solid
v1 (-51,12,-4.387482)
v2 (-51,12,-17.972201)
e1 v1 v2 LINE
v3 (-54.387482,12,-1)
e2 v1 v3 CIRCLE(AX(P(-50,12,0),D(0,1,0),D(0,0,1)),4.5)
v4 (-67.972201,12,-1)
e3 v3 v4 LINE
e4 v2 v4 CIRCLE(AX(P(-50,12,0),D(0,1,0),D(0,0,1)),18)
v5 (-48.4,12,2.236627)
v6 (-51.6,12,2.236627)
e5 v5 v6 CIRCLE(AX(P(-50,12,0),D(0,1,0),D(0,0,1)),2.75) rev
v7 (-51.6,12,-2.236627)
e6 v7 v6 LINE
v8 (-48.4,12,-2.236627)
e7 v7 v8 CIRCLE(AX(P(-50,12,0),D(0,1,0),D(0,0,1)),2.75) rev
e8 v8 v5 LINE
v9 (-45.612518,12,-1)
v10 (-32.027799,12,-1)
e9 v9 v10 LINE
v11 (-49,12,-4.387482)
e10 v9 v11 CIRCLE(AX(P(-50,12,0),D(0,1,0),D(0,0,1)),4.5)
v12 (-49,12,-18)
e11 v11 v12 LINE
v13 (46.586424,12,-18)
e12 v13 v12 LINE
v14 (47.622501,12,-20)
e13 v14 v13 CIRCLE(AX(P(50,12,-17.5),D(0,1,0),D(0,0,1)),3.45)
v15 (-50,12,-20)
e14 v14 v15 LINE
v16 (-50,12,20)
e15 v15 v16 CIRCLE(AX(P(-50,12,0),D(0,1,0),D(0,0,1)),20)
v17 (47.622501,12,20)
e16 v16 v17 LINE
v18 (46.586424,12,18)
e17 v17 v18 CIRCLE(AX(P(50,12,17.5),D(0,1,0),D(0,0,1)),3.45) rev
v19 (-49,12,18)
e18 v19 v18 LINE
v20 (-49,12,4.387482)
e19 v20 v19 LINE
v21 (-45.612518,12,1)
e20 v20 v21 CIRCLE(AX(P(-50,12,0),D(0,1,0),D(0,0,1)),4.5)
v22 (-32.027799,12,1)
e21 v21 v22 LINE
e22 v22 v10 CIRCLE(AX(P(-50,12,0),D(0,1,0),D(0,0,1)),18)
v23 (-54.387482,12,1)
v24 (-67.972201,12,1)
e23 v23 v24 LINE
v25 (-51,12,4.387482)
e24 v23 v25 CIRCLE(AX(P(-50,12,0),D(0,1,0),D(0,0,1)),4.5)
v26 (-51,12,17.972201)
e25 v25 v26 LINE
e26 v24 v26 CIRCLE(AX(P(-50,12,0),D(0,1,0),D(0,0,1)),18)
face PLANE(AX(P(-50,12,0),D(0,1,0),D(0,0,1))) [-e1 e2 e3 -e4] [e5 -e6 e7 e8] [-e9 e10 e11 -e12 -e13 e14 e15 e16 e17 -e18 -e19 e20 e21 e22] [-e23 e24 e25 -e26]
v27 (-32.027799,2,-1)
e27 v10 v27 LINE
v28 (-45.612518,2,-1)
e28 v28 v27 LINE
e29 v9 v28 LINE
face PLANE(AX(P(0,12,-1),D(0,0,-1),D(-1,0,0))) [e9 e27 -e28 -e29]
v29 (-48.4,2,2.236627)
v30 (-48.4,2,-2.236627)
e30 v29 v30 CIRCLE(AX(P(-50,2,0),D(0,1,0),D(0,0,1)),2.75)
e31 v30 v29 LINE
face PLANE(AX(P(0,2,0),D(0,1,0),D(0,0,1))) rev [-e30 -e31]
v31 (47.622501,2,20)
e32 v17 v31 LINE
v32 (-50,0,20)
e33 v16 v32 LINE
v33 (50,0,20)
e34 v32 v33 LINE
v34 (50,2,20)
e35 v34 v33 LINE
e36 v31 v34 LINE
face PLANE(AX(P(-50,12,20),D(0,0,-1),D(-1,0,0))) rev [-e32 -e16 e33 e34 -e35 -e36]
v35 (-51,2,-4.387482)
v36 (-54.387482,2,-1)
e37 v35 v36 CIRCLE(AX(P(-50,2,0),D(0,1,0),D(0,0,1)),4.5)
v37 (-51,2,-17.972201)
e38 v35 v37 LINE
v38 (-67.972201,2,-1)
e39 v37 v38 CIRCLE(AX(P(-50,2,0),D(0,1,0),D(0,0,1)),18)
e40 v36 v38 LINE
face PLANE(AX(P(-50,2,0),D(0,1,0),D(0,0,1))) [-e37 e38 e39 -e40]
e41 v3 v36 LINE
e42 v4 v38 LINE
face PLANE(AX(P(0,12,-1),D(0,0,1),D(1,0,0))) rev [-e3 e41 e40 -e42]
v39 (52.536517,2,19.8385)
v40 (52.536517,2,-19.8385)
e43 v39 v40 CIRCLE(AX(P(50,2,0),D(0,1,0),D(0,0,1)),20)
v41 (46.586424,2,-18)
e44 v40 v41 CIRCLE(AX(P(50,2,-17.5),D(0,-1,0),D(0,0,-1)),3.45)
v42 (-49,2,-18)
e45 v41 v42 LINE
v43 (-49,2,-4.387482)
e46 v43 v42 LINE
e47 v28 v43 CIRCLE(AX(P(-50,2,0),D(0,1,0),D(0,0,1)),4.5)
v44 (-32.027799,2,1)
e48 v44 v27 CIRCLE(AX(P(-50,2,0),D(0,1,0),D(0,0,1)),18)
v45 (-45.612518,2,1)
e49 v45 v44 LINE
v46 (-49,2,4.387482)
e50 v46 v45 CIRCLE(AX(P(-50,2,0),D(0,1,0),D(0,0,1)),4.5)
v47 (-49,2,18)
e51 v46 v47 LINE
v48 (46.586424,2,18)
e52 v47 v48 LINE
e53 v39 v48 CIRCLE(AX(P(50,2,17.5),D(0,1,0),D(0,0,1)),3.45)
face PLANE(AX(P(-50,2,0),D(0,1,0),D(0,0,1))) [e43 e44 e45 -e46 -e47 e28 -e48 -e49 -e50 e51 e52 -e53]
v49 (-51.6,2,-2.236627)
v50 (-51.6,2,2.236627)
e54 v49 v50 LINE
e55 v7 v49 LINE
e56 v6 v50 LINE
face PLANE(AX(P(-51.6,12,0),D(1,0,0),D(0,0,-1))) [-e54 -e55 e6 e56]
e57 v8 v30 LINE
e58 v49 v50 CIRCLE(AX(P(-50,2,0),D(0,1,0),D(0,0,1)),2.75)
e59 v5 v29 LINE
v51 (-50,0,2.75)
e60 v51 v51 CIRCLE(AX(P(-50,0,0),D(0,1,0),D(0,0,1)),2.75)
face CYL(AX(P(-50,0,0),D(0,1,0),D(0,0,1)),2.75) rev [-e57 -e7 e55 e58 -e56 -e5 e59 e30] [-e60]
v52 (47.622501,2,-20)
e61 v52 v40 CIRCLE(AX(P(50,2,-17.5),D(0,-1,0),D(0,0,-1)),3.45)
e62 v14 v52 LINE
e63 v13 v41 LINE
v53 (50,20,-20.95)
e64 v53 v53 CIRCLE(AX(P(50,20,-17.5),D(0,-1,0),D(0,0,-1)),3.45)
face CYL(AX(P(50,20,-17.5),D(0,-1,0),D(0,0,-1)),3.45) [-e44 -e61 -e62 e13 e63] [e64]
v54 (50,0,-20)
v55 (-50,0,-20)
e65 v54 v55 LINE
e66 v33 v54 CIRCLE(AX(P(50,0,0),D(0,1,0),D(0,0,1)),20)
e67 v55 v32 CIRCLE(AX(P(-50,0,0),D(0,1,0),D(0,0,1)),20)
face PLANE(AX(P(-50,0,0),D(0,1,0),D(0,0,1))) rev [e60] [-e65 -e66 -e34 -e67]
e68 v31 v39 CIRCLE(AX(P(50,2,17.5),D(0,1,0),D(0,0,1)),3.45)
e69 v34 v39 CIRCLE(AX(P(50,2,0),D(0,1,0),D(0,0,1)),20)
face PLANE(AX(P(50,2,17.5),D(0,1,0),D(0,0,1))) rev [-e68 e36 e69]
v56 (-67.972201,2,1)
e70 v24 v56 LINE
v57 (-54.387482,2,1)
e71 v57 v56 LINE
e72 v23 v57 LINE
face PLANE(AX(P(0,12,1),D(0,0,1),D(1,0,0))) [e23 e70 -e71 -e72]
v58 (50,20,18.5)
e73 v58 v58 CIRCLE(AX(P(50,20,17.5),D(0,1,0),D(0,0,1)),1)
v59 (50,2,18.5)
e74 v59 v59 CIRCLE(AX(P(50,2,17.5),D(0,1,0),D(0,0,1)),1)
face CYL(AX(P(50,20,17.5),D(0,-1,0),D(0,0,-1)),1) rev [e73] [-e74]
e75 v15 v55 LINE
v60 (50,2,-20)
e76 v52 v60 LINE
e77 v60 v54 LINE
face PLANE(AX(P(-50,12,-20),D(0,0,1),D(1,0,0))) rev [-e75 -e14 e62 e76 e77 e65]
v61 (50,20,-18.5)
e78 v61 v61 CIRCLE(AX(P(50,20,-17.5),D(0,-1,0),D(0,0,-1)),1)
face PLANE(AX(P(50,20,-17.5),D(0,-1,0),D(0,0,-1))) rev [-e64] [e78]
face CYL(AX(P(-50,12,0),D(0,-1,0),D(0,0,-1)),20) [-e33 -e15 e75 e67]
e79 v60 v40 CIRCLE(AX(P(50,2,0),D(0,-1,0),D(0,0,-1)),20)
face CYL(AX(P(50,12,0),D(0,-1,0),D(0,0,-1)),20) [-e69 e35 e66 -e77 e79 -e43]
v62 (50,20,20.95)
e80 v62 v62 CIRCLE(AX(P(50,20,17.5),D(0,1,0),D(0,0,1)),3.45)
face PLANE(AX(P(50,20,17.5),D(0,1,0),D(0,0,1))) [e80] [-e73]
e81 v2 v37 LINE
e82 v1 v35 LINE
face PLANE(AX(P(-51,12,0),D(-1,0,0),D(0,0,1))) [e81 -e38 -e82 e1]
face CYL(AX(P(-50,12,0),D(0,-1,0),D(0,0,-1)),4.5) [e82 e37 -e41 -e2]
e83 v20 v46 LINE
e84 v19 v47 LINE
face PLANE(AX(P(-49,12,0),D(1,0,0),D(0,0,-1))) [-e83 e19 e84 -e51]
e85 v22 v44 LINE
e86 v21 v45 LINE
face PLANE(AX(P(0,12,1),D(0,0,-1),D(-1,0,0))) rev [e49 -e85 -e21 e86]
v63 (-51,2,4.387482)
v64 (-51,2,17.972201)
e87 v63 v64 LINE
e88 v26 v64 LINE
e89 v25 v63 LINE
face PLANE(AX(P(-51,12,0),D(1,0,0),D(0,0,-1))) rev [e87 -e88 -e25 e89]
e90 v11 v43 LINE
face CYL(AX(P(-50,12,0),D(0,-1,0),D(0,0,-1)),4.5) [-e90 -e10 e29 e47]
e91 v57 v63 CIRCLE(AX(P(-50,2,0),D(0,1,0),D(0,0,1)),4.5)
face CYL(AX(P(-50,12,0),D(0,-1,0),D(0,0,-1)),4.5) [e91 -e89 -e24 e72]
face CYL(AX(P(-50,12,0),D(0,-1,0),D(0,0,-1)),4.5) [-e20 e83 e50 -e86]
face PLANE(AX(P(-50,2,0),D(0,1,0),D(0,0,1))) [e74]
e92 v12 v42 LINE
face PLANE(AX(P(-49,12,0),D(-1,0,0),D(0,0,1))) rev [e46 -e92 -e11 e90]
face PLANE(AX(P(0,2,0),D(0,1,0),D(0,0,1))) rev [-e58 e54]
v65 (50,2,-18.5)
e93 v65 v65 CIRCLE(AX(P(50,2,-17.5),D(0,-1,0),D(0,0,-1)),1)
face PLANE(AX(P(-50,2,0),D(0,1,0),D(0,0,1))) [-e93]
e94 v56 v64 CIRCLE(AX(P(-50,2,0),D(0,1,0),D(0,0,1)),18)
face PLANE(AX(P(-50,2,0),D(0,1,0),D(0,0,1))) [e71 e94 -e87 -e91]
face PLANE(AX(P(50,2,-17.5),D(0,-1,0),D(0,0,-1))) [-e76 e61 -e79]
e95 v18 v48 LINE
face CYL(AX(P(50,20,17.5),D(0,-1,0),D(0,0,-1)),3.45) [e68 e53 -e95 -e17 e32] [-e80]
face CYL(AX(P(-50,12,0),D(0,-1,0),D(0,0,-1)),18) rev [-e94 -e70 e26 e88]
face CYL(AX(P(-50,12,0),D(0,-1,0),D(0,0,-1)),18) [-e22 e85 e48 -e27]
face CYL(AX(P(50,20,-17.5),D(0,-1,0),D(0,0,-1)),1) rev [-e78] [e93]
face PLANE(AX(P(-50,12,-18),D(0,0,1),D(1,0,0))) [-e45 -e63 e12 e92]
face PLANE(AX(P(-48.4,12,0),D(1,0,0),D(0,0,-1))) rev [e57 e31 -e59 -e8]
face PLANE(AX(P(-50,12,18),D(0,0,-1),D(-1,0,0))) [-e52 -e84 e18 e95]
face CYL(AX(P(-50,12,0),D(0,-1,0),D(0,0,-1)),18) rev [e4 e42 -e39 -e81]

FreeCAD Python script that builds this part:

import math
import FreeCAD as App
import Part
import Sketcher

V = App.Vector


def faces_at(feature, points):
    """Names of the faces that lie closest to the given points."""
    faces = feature.Shape.Faces
    near = lambda p: min(range(len(faces)), key=lambda i: faces[i].distToShape(Part.Vertex(*p))[0])
    return sorted({f"Face{near(p) + 1}" for p in points})


def add_polygon(sketch, points):
    """Adds a closed chain of lines whose ends are joined by coincident constraints."""
    first, n = sketch.GeometryCount, len(points)
    for a, b in zip(points, points[1:] + points[:1]):
        sketch.addGeometry(Part.LineSegment(App.Vector(*a, 0), App.Vector(*b, 0)), False)
    for i in range(n):
        sketch.addConstraint(Sketcher.Constraint("Coincident", first + i, 2, first + (i + 1) % n, 1))

doc = App.newDocument("Part")
body = doc.addObject("PartDesign::Body", "Body")

# Sketch on XZ plane
sketch1 = body.newObject("Sketcher::SketchObject", "Sketch")
sketch1.AttachmentSupport = (doc.getObject("XZ_Plane"), [""])
sketch1.MapMode = "FlatFace"
sketch1.addGeometry([
    Part.LineSegment(V(50, -20, 0), V(-50, -20, 0)),
    Part.ArcOfCircle(Part.Circle(V(-50, 0, 0), V(0, 0, 1), 20), math.radians(90), math.radians(270)),
    Part.LineSegment(V(-50, 20, 0), V(50, 20, 0)),
    Part.ArcOfCircle(Part.Circle(V(50, 0, 0), V(0, 0, 1), 20), math.radians(-90), math.radians(90)),
], False)
sketch1.addConstraint([
    Sketcher.Constraint("Tangent", 0, 2, 1, 2),
    Sketcher.Constraint("Tangent", 1, 1, 2, 1),
    Sketcher.Constraint("Tangent", 2, 2, 3, 2),
    Sketcher.Constraint("Tangent", 3, 1, 0, 1),
    Sketcher.Constraint("Horizontal", 0),
    Sketcher.Constraint("Horizontal", 2),
    Sketcher.Constraint("Symmetric", 1, 3, 3, 3, -1, 1),
    Sketcher.Constraint("Radius", 1, 20.0),
    Sketcher.Constraint("DistanceX", 0, 2, 0, 1, 100.0),
])
pad1 = body.newObject("PartDesign::Pad", "Pad")
pad1.Profile = sketch1
pad1.Length = 12
pad1.Reversed = True
doc.recompute()

thickness = body.newObject("PartDesign::Thickness", "Thickness")
thickness.Base = (pad1, faces_at(pad1, [(0, 12, 0)]))
thickness.Value = 2
thickness.Reversed = True
thickness.Join = "Intersection"

# Sketch on XZ plane
sketch2 = body.newObject("Sketcher::SketchObject", "Sketch001")
sketch2.AttachmentSupport = (doc.getObject("XZ_Plane"), [""])
sketch2.MapMode = "FlatFace"
sketch2.AttachmentOffset = App.Placement(V(0, 0, -2), App.Rotation())
sketch2.addGeometry(Part.Circle(V(-50, 0, 0), V(0, 0, 1), 2.8), False)
sketch2.addConstraint([
    Sketcher.Constraint("PointOnObject", 0, 3, -1),
    Sketcher.Constraint("Diameter", 0, 5.5),
    Sketcher.Constraint("DistanceX", 0, 3, -1, 1, 50.0),
])
pocket1 = body.newObject("PartDesign::Pocket", "Pocket")
pocket1.Profile = sketch2
pocket1.Length = 2
pocket1.Reversed = True

# Sketch on XZ plane
sketch3 = body.newObject("Sketcher::SketchObject", "Sketch002")
sketch3.AttachmentSupport = (doc.getObject("XZ_Plane"), [""])
sketch3.MapMode = "FlatFace"
sketch3.AttachmentOffset = App.Placement(V(0, 0, -12), App.Rotation())
sketch3.addGeometry([
    Part.Circle(V(-50, 0, 0), V(0, 0, 1), 4.5),  # 0
    Part.ArcOfCircle(Part.Circle(V(-50, 0, 0), V(0, 0, 1), 2.8), math.radians(54), math.radians(126)),  # 1
    Part.LineSegment(V(-51.6, 2.2, 0), V(-51.6, -2.2, 0)),  # 2
    Part.ArcOfCircle(Part.Circle(V(-50, 0, 0), V(0, 0, 1), 2.8), math.radians(-126), math.radians(-54)),  # 3
    Part.LineSegment(V(-48.4, -2.2, 0), V(-48.4, 2.2, 0)),  # 4
], False)
sketch3.addConstraint([
    Sketcher.Constraint("Coincident", 1, 2, 2, 1),
    Sketcher.Constraint("Coincident", 2, 2, 3, 1),
    Sketcher.Constraint("Coincident", 3, 2, 4, 1),
    Sketcher.Constraint("Coincident", 4, 2, 1, 1),
    Sketcher.Constraint("Vertical", 2),
    Sketcher.Constraint("Vertical", 4),
    Sketcher.Constraint("Coincident", 1, 3, 0, 3),
    Sketcher.Constraint("Coincident", 3, 3, 0, 3),
    Sketcher.Constraint("Equal", 1, 3),
    Sketcher.Constraint("PointOnObject", 0, 3, -1),
    Sketcher.Constraint("Horizontal", 2, 2, 3, 2),
    Sketcher.Constraint("Diameter", 0, 9.0),
    Sketcher.Constraint("Radius", 1, 2.75),
    Sketcher.Constraint("DistanceX", 0, 3, -1, 1, 50.0),
    Sketcher.Constraint("DistanceX", 1, 2, -1, 1, 51.6),
])
pad2 = body.newObject("PartDesign::Pad", "Pad001")
pad2.Profile = sketch3
pad2.Length = 10

# Sketch on XZ plane
sketch4 = body.newObject("Sketcher::SketchObject", "Sketch003")
sketch4.AttachmentSupport = (doc.getObject("XZ_Plane"), [""])
sketch4.MapMode = "FlatFace"
sketch4.AttachmentOffset = App.Placement(V(0, 0, -2), App.Rotation())
sketch4.addGeometry([
    Part.ArcOfCircle(Part.Circle(V(-50, 0, 0), V(0, 0, 1), 4.5), math.radians(-103), math.radians(-77)),  # 0
    Part.LineSegment(V(-49, -4.4, 0), V(-49, -18, 0)),  # 1
    Part.LineSegment(V(-49, -18, 0), V(-51, -18, 0)),  # 2
    Part.LineSegment(V(-51, -18, 0), V(-51, -4.4, 0)),  # 3
    Part.LineSegment(V(-32, -1, 0), V(-45.6, -1, 0)),  # 4
    Part.ArcOfCircle(Part.Circle(V(-50, 0, 0), V(0, 0, 1), 4.5), math.radians(-12.84), math.radians(0)),  # 5
    Part.ArcOfCircle(Part.Circle(V(-50, 0, 0), V(0, 0, 1), 4.5), math.radians(0), math.radians(12.84)),  # 6
    Part.LineSegment(V(-45.6, 1, 0), V(-32, 1, 0)),  # 7
    Part.ArcOfCircle(Part.Circle(V(-50, 0, 0), V(0, 0, 1), 18), math.radians(0), math.radians(3.18)),  # 8
    Part.ArcOfCircle(Part.Circle(V(-50, 0, 0), V(0, 0, 1), 18), math.radians(-3.18), math.radians(0)),  # 9
    Part.ArcOfCircle(Part.Circle(V(-50, 0, 0), V(0, 0, 1), 4.5), math.radians(77), math.radians(103)),  # 10
    Part.LineSegment(V(-51, 4.4, 0), V(-51, 18, 0)),  # 11
    Part.ArcOfCircle(Part.Circle(V(-50, 0, 0), V(0, 0, 1), 18), math.radians(90), math.radians(93.18)),  # 12
    Part.LineSegment(V(-50, 18, 0), V(-49, 18, 0)),  # 13
    Part.LineSegment(V(-49, 18, 0), V(-49, 4.4, 0)),  # 14
    Part.ArcOfCircle(Part.Circle(V(-50, 0, 0), V(0, 0, 1), 4.5), math.radians(167), math.radians(193)),  # 15
    Part.LineSegment(V(-54.4, -1, 0), V(-68, -1, 0)),  # 16
    Part.ArcOfCircle(Part.Circle(V(-50, 0, 0), V(0, 0, 1), 18), math.radians(180), math.radians(183.18)),  # 17
    Part.ArcOfCircle(Part.Circle(V(-50, 0, 0), V(0, 0, 1), 18), math.radians(176.82), math.radians(180)),  # 18
    Part.LineSegment(V(-68, 1, 0), V(-54.4, 1, 0)),  # 19
], False)
sketch4.addConstraint([
    Sketcher.Constraint("Coincident", 0, 2, 1, 1),
    Sketcher.Constraint("Coincident", 1, 2, 2, 1),
    Sketcher.Constraint("Coincident", 2, 2, 3, 1),
    Sketcher.Constraint("Coincident", 3, 2, 0, 1),
    Sketcher.Constraint("Coincident", 4, 2, 5, 1),
    Sketcher.Constraint("Tangent", 5, 2, 6, 1),
    Sketcher.Constraint("Coincident", 6, 2, 7, 1),
    Sketcher.Constraint("Coincident", 7, 2, 8, 2),
    Sketcher.Constraint("Tangent", 8, 1, 9, 2),
    Sketcher.Constraint("Coincident", 9, 1, 4, 1),
    Sketcher.Constraint("Coincident", 10, 2, 11, 1),
    Sketcher.Constraint("Coincident", 11, 2, 12, 2),
    Sketcher.Constraint("Tangent", 12, 1, 13, 1),
    Sketcher.Constraint("Coincident", 13, 2, 14, 1),
    Sketcher.Constraint("Coincident", 14, 2, 10, 1),
    Sketcher.Constraint("Coincident", 15, 2, 16, 1),
    Sketcher.Constraint("Coincident", 16, 2, 17, 2),
    Sketcher.Constraint("Tangent", 17, 1, 18, 2),
    Sketcher.Constraint("Coincident", 18, 1, 19, 1),
    Sketcher.Constraint("Coincident", 19, 2, 15, 1),
    Sketcher.Constraint("Vertical", 1),
    Sketcher.Constraint("Horizontal", 2),
    Sketcher.Constraint("Vertical", 3),
    Sketcher.Constraint("Horizontal", 4),
    Sketcher.Constraint("Horizontal", 7),
    Sketcher.Constraint("Vertical", 11),
    Sketcher.Constraint("Horizontal", 13),
    Sketcher.Constraint("Vertical", 14),
    Sketcher.Constraint("Horizontal", 16),
    Sketcher.Constraint("Horizontal", 19),
    Sketcher.Constraint("Coincident", 5, 3, 0, 3),
    Sketcher.Constraint("Coincident", 8, 3, 0, 3),
    Sketcher.Constraint("Coincident", 10, 3, 0, 3),
    Sketcher.Constraint("Coincident", 12, 3, 0, 3),
    Sketcher.Constraint("Coincident", 15, 3, 0, 3),
    Sketcher.Constraint("Coincident", 17, 3, 0, 3),
    Sketcher.Constraint("Equal", 0, 5),
    Sketcher.Constraint("Equal", 5, 6),
    Sketcher.Constraint("Equal", 8, 9),
    Sketcher.Constraint("Equal", 6, 10),
    Sketcher.Constraint("Equal", 9, 12),
    Sketcher.Constraint("Equal", 10, 15),
    Sketcher.Constraint("Equal", 12, 17),
    Sketcher.Constraint("Equal", 17, 18),
    Sketcher.Constraint("Symmetric", 4, 2, 6, 2, -1),
    Sketcher.Constraint("Symmetric", 1, 2, 13, 2, -1),
    Sketcher.Constraint("PointOnObject", 5, 2, -1),
    Sketcher.Constraint("PointOnObject", 8, 1, -1),
    Sketcher.Constraint("PointOnObject", 17, 1, -1),
    Sketcher.Constraint("Horizontal", 0, 2, 3, 2),
    Sketcher.Constraint("Horizontal", 10, 2, 14, 2),
    Sketcher.Constraint("Horizontal", 9, 1, 15, 2),
    Sketcher.Constraint("Horizontal", 7, 2, 18, 1),
    Sketcher.Constraint("Equal", 19, 11),
    Sketcher.Constraint("Radius", 8, 18.0),
    Sketcher.Constraint("Radius", 0, 4.5),
    Sketcher.Constraint("DistanceX", 2, 2, 2, 1, 2.0),
    Sketcher.Constraint("DistanceX", 0, 3, -1, 1, 50.0),
])
pad3 = body.newObject("PartDesign::Pad", "Pad002")
pad3.Profile = sketch4
pad3.Length = 10
pad3.Reversed = True

# Sketch on XZ plane
sketch5 = body.newObject("Sketcher::SketchObject", "Sketch004")
sketch5.AttachmentSupport = (doc.getObject("XZ_Plane"), [""])
sketch5.MapMode = "FlatFace"
sketch5.AttachmentOffset = App.Placement(V(0, 0, -12), App.Rotation())
add_polygon(sketch5, [(50, -20), (50, 20), (70, 20), (70, -20)])  # lines 0-3
sketch5.addConstraint([
    Sketcher.Constraint("Vertical", 0),
    Sketcher.Constraint("Horizontal", 1),
    Sketcher.Constraint("Vertical", 2),
    Sketcher.Constraint("Horizontal", 3),
    Sketcher.Constraint("DistanceX", 1, 1, 1, 2, 20.0),
    Sketcher.Constraint("DistanceY", 0, 1, 0, 2, 40.0),
    Sketcher.Constraint("DistanceX", -1, 1, 0, 2, 50.0),
    Sketcher.Constraint("DistanceY", -1, 1, 0, 2, 20.0),
])
pocket2 = body.newObject("PartDesign::Pocket", "Pocket001")
pocket2.Profile = sketch5
pocket2.Length = 10
pocket2.Reversed = True

# Sketch on XZ plane
sketch6 = body.newObject("Sketcher::SketchObject", "Sketch005")
sketch6.AttachmentSupport = (doc.getObject("XZ_Plane"), [""])
sketch6.MapMode = "FlatFace"
sketch6.AttachmentOffset = App.Placement(V(0, 0, -2), App.Rotation())
sketch6.addGeometry([
    Part.Circle(V(50, 17.5, 0), V(0, 0, 1), 3.5),
    Part.Circle(V(50, 17.5, 0), V(0, 0, 1), 1),
    Part.Circle(V(50, -17.5, 0), V(0, 0, 1), 3.5),
    Part.Circle(V(50, -17.5, 0), V(0, 0, 1), 1),
], False)
sketch6.addConstraint([
    Sketcher.Constraint("Coincident", 1, 3, 0, 3),
    Sketcher.Constraint("Coincident", 3, 3, 2, 3),
    Sketcher.Constraint("Equal", 0, 2),
    Sketcher.Constraint("Equal", 1, 3),
    Sketcher.Constraint("Symmetric", 0, 3, 2, 3, -1),
    Sketcher.Constraint("Diameter", 1, 2.0),
    Sketcher.Constraint("Diameter", 0, 6.9),
    Sketcher.Constraint("DistanceX", -1, 1, 0, 3, 50.0),
    Sketcher.Constraint("DistanceY", 2, 3, 0, 3, 35.0),
])
pad4 = body.newObject("PartDesign::Pad", "Pad003")
pad4.Profile = sketch6
pad4.Length = 18
pad4.Reversed = True

# Sketch on XZ plane
sketch7 = body.newObject("Sketcher::SketchObject", "Sketch006")
sketch7.AttachmentSupport = (doc.getObject("XZ_Plane"), [""])
sketch7.MapMode = "FlatFace"
sketch7.AttachmentOffset = App.Placement(V(0, 0, -2), App.Rotation())
sketch7.addGeometry([
    Part.Circle(V(50, -17.5, 0), V(0, 0, 1), 1),
    Part.Circle(V(50, 17.5, 0), V(0, 0, 1), 1),
], False)
sketch7.addConstraint([
    Sketcher.Constraint("Equal", 0, 1),
    Sketcher.Constraint("Symmetric", 0, 3, 1, 3, -1),
    Sketcher.Constraint("Diameter", 0, 2.0),
    Sketcher.Constraint("DistanceX", -1, 1, 0, 3, 50.0),
    Sketcher.Constraint("DistanceY", 0, 3, 1, 3, 35.0),
])
pocket3 = body.newObject("PartDesign::Pocket", "Pocket002")
pocket3.Profile = sketch7
pocket3.Length = 10

doc.recompute()
